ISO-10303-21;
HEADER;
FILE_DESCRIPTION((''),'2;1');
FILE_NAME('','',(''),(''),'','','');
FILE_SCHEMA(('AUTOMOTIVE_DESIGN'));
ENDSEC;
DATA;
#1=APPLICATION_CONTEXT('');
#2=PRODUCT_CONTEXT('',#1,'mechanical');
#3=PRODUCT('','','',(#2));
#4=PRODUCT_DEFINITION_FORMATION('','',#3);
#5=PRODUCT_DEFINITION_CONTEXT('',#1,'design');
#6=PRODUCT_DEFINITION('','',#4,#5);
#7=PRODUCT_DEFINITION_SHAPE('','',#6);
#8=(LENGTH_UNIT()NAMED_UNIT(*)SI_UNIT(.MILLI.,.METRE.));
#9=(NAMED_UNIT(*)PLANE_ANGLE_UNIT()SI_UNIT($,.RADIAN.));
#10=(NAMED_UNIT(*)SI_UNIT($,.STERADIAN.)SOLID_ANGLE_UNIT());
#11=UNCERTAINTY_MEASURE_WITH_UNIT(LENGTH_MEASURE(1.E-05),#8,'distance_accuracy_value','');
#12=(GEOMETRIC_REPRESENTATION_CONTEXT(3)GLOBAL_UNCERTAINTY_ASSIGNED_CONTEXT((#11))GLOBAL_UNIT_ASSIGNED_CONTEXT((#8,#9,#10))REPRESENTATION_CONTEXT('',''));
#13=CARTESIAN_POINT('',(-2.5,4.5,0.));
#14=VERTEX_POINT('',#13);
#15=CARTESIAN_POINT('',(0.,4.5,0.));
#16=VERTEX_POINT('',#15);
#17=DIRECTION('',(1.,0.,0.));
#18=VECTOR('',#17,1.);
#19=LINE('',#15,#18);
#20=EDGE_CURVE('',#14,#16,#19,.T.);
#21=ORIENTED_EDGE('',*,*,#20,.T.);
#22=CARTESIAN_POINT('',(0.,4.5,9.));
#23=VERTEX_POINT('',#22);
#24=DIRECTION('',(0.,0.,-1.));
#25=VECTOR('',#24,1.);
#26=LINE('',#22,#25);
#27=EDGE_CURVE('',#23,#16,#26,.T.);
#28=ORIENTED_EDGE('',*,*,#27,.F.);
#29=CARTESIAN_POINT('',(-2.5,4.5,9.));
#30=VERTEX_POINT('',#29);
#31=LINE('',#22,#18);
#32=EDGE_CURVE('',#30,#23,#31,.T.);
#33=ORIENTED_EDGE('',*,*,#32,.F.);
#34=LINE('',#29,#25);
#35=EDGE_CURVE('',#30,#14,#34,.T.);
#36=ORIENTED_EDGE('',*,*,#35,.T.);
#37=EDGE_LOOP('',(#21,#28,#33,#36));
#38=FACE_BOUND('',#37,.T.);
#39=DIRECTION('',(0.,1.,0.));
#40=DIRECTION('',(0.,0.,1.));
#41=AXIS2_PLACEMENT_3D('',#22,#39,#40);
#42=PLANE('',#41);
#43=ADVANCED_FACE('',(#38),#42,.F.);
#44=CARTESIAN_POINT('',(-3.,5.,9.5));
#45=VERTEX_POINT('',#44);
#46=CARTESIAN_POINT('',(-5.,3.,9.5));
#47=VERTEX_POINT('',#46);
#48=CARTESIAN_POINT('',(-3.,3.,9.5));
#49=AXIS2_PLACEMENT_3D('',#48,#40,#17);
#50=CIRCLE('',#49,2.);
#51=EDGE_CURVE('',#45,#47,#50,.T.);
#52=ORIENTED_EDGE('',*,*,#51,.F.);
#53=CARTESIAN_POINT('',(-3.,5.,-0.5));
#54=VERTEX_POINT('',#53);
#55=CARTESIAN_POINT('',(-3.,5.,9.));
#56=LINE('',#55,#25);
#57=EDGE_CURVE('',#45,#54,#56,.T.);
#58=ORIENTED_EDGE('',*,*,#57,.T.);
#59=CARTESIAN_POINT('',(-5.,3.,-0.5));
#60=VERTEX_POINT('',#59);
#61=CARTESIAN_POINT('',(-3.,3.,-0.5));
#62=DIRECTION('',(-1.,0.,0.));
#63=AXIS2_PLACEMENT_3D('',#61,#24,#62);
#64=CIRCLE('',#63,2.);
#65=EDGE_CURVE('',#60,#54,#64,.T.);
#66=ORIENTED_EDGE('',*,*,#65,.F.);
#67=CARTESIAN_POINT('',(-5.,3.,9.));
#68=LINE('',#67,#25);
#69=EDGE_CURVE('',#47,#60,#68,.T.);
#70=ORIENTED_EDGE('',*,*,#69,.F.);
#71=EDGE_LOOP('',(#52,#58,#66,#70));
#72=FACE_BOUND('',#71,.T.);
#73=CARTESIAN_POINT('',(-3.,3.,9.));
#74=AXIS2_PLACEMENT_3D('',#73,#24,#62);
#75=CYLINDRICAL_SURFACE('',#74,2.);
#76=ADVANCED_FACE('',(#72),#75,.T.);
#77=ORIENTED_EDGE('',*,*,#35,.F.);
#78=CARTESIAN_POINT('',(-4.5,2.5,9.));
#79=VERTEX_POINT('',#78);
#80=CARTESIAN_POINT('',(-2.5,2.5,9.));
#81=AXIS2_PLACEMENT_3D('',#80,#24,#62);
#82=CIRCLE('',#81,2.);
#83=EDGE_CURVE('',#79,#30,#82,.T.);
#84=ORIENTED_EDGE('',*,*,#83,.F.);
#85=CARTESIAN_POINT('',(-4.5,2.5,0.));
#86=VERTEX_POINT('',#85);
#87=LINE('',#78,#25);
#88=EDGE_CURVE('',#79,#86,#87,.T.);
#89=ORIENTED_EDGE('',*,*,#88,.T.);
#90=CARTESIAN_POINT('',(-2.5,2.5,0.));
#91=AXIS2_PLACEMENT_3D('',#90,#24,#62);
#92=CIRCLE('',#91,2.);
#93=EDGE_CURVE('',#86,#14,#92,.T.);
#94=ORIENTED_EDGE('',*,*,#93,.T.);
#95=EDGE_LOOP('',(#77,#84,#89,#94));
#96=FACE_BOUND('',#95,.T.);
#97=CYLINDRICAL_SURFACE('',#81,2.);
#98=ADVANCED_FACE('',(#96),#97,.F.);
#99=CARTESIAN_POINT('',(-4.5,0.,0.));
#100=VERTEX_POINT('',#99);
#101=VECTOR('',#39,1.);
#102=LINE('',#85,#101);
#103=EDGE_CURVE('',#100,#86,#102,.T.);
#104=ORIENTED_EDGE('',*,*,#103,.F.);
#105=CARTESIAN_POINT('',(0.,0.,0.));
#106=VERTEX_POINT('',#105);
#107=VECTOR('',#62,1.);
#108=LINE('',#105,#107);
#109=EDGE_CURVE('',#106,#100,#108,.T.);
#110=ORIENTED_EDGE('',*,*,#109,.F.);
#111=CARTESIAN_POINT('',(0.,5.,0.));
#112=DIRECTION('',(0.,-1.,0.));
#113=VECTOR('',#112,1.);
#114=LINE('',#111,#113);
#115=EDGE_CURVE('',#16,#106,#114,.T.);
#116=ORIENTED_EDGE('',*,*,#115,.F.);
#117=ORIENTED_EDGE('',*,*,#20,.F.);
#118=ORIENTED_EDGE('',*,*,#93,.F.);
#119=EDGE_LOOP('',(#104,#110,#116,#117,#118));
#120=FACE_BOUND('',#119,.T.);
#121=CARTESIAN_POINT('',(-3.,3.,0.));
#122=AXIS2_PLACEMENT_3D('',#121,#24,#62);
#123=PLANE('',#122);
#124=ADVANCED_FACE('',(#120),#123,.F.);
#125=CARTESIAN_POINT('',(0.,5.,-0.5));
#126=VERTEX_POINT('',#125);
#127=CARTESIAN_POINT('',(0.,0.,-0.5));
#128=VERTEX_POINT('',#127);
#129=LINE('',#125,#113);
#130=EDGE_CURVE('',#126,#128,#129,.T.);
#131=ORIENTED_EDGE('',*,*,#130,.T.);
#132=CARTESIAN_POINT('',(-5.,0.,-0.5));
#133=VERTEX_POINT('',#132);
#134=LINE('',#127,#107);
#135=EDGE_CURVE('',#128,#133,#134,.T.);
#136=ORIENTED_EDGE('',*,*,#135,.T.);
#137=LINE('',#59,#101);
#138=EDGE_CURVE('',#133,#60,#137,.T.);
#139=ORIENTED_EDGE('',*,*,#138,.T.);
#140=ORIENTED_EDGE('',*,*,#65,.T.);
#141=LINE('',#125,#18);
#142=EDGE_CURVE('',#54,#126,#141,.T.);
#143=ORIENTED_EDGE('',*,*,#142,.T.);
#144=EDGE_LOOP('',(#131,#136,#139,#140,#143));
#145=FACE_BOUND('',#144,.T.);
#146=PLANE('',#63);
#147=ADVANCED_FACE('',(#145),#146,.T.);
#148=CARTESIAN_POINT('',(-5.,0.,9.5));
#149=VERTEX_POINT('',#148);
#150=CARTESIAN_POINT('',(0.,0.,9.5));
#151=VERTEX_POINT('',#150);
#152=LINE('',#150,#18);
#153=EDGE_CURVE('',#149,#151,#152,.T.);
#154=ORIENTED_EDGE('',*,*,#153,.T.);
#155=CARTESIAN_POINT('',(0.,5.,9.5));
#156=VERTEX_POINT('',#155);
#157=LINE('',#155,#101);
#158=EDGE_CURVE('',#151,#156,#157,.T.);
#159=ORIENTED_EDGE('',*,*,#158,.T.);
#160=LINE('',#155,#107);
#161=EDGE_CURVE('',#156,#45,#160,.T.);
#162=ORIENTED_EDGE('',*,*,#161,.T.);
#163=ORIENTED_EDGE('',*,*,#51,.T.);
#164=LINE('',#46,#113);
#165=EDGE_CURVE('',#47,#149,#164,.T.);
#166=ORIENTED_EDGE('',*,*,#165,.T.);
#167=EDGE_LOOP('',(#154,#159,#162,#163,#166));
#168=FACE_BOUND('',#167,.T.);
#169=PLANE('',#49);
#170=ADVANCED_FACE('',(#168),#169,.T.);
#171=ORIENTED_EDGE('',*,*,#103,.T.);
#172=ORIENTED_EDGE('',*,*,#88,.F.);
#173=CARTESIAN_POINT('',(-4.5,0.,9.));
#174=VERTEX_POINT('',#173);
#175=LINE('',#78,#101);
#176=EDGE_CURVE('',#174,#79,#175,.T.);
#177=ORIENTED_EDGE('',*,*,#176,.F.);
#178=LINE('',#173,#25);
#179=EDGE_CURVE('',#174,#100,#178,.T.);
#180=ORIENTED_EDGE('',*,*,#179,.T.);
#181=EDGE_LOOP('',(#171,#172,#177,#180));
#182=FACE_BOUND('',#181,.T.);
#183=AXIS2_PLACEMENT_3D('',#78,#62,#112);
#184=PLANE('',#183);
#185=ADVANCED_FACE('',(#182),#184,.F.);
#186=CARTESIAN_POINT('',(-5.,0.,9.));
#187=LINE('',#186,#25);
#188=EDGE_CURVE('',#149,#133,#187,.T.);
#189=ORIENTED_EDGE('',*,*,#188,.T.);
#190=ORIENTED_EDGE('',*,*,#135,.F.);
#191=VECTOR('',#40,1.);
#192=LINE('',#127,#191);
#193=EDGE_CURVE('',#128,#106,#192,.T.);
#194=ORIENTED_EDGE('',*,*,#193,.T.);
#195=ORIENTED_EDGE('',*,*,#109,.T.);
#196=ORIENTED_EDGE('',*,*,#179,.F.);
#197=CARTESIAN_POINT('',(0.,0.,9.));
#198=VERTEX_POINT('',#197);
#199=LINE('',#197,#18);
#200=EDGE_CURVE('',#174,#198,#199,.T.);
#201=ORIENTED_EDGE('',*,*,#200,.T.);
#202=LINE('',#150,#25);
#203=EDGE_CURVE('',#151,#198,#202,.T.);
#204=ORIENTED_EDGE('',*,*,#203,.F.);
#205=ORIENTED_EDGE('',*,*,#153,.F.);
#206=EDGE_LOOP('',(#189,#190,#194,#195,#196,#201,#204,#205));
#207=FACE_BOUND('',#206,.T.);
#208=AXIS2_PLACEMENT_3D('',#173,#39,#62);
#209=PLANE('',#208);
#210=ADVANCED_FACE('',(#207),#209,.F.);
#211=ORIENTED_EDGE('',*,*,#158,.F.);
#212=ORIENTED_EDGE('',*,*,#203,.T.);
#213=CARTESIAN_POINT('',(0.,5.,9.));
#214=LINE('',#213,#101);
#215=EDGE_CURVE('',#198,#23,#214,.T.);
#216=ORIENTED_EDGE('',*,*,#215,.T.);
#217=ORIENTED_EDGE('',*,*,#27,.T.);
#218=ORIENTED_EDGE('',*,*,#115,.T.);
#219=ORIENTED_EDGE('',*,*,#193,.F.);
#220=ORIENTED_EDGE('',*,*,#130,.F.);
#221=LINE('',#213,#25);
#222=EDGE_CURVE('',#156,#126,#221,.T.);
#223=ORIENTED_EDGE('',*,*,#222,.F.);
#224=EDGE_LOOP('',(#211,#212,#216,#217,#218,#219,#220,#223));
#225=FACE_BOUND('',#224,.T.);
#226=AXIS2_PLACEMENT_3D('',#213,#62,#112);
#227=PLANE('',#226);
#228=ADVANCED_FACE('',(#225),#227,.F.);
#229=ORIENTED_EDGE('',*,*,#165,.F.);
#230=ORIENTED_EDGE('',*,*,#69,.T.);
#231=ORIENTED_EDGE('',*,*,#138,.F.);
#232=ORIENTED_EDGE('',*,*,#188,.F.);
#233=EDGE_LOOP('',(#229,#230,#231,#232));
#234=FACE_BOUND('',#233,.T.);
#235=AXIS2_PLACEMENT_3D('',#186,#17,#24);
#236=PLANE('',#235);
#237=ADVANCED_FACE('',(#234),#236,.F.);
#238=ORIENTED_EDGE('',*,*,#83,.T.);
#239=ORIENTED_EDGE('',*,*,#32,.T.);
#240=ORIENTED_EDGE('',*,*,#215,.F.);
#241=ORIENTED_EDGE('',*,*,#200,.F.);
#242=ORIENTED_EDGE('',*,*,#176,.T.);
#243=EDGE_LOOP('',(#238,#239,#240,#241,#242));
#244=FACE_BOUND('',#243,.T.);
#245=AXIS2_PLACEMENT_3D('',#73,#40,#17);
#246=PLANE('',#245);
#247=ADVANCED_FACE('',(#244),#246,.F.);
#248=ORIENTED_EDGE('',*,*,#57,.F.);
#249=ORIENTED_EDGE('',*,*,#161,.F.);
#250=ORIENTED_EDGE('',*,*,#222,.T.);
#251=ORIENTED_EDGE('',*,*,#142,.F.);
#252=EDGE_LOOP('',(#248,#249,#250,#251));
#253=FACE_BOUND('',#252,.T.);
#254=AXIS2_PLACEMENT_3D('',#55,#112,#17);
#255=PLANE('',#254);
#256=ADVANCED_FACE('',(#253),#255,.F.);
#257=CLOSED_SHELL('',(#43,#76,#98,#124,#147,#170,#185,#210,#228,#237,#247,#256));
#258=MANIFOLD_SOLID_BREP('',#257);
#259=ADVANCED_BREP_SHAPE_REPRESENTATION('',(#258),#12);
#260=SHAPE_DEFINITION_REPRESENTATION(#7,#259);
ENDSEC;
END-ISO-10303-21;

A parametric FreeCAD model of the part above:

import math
import FreeCAD as App
import Part
import Sketcher
from FreeCAD import Vector
Q = App.Units.Quantity

doc = App.newDocument("Part")
body = doc.addObject("PartDesign::Body", "Body")

sketch1 = body.newObject("Sketcher::SketchObject", "Sketch")
sketch1.AttachmentSupport = (doc.getObject("XY_Plane"), [""])
sketch1.MapMode = "FlatFace"
sketch1.addGeometry([
    Part.LineSegment(Vector(-5, 3, 0), Vector(-5, 0, 0)),
    Part.LineSegment(Vector(-5, 0, 0), Vector(-4.5, 0, 0)),
    Part.LineSegment(Vector(-4.5, 0, 0), Vector(-4.5, 2.5, 0)),
    Part.ArcOfCircle(Part.Circle(Vector(-2.5, 2.5, 0), Vector(0, 0, 1), 2), math.radians(90), math.radians(180)),
    Part.LineSegment(Vector(-2.5, 4.5, 0), Vector(0, 4.5, 0)),
    Part.LineSegment(Vector(0, 4.5, 0), Vector(0, 5, 0)),
    Part.LineSegment(Vector(0, 5, 0), Vector(-3, 5, 0)),
    Part.ArcOfCircle(Part.Circle(Vector(-3, 3, 0), Vector(0, 0, 1), 2), math.radians(90), math.radians(180)),
], False)
sketch1.addConstraint([
    Sketcher.Constraint("Coincident", 0, 2, 1, 1),
    Sketcher.Constraint("Coincident", 1, 2, 2, 1),
    Sketcher.Constraint("Tangent", 2, 2, 3, 2),
    Sketcher.Constraint("Tangent", 3, 1, 4, 1),
    Sketcher.Constraint("Coincident", 4, 2, 5, 1),
    Sketcher.Constraint("Coincident", 5, 2, 6, 1),
    Sketcher.Constraint("Tangent", 6, 2, 7, 1),
    Sketcher.Constraint("Tangent", 7, 2, 0, 1),
    Sketcher.Constraint("Vertical", 0),
    Sketcher.Constraint("Horizontal", 1),
    Sketcher.Constraint("Vertical", 2),
    Sketcher.Constraint("Horizontal", 4),
    Sketcher.Constraint("Vertical", 5),
    Sketcher.Constraint("Horizontal", 6),
    Sketcher.Constraint("Equal", 3, 7),
    Sketcher.Constraint("PointOnObject", 0, 2, -1),
    Sketcher.Constraint("PointOnObject", 4, 2, -2),
    Sketcher.Constraint("Equal", 6, 0),
    Sketcher.Constraint("Equal", 4, 2),
    Sketcher.Constraint("Radius", 3, Q("2 mm")),
    Sketcher.Constraint("DistanceX", 6, 2, 6, 1, Q("3 mm")),
    Sketcher.Constraint("DistanceX", 1, 1, 1, 2, Q("0.5 mm")),
])
pad1 = body.newObject("PartDesign::Pad", "Pad")
pad1.Profile = sketch1
pad1.Length = 9

sketch2 = body.newObject("Sketcher::SketchObject", "Sketch001")
sketch2.AttachmentSupport = (doc.getObject("XY_Plane"), [""])
sketch2.MapMode = "FlatFace"
sketch2.AttachmentOffset = App.Placement(Vector(0, 0, 9), App.Rotation())
sketch2.addGeometry([
    Part.LineSegment(Vector(0, 0, 0), Vector(0, 5, 0)),
    Part.LineSegment(Vector(0, 5, 0), Vector(-3, 5, 0)),
    Part.ArcOfCircle(Part.Circle(Vector(-3, 3, 0), Vector(0, 0, 1), 2), math.radians(90), math.radians(180)),
    Part.LineSegment(Vector(-5, 3, 0), Vector(-5, 0, 0)),
    Part.LineSegment(Vector(-5, 0, 0), Vector(0, 0, 0)),
], False)
sketch2.addConstraint([
    Sketcher.Constraint("Coincident", 0, 2, 1, 1),
    Sketcher.Constraint("Tangent", 1, 2, 2, 1),
    Sketcher.Constraint("Tangent", 2, 2, 3, 1),
    Sketcher.Constraint("Coincident", 3, 2, 4, 1),
    Sketcher.Constraint("Coincident", 4, 2, 0, 1),
    Sketcher.Constraint("Vertical", 0),
    Sketcher.Constraint("Horizontal", 1),
    Sketcher.Constraint("Vertical", 3),
    Sketcher.Constraint("Horizontal", 4),
    Sketcher.Constraint("Coincident", 4, 2, -1, 1),
    Sketcher.Constraint("Equal", 4, 0),
    Sketcher.Constraint("Radius", 2, Q("2 mm")),
    Sketcher.Constraint("DistanceX", 1, 2, 1, 1, Q("3 mm")),
])
pad2 = body.newObject("PartDesign::Pad", "Pad001")
pad2.Profile = sketch2
pad2.Length = 0.5

sketch3 = body.newObject("Sketcher::SketchObject", "Sketch002")
sketch3.AttachmentSupport = (doc.getObject("XY_Plane"), [""])
sketch3.MapMode = "FlatFace"
sketch3.addGeometry([
    Part.LineSegment(Vector(-3, 5, 0), Vector(0, 5, 0)),
    Part.LineSegment(Vector(0, 5, 0), Vector(0, 0, 0)),
    Part.LineSegment(Vector(0, 0, 0), Vector(-5, 0, 0)),
    Part.LineSegment(Vector(-5, 0, 0), Vector(-5, 3, 0)),
    Part.ArcOfCircle(Part.Circle(Vector(-3, 3, 0), Vector(0, 0, 1), 2), math.radians(90), math.radians(180)),
], False)
sketch3.addConstraint([
    Sketcher.Constraint("Coincident", 0, 2, 1, 1),
    Sketcher.Constraint("Coincident", 1, 2, 2, 1),
    Sketcher.Constraint("Coincident", 2, 2, 3, 1),
    Sketcher.Constraint("Tangent", 3, 2, 4, 2),
    Sketcher.Constraint("Tangent", 4, 1, 0, 1),
    Sketcher.Constraint("Horizontal", 0),
    Sketcher.Constraint("Vertical", 1),
    Sketcher.Constraint("Horizontal", 2),
    Sketcher.Constraint("Vertical", 3),
    Sketcher.Constraint("Coincident", 1, 2, -1, 1),
    Sketcher.Constraint("Equal", 2, 1),
    Sketcher.Constraint("Radius", 4, Q("2 mm")),
    Sketcher.Constraint("DistanceX", 0, 1, 0, 2, Q("3 mm")),
])
pad3 = body.newObject("PartDesign::Pad", "Pad002")
pad3.Profile = sketch3
pad3.Length = 0.5
pad3.Reversed = True

doc.recompute()
